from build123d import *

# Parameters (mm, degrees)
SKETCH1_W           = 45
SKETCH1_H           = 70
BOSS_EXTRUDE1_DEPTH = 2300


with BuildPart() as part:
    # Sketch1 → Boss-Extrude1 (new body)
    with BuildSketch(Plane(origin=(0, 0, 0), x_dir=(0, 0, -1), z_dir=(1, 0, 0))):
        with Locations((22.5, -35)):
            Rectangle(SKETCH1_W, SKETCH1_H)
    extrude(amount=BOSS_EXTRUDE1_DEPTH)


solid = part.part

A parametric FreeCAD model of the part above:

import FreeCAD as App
import Part
import Sketcher


def add_polygon(sketch, points):
    """Adds a closed chain of lines whose ends are joined by coincident constraints."""
    first, n = sketch.GeometryCount, len(points)
    for a, b in zip(points, points[1:] + points[:1]):
        sketch.addGeometry(Part.LineSegment(App.Vector(*a, 0), App.Vector(*b, 0)), False)
    for i in range(n):
        sketch.addConstraint(Sketcher.Constraint("Coincident", first + i, 2, first + (i + 1) % n, 1))

doc = App.newDocument("Part")
body = doc.addObject("PartDesign::Body", "Body")

# Sketch on YZ plane
sketch1 = doc.addObject("Sketcher::SketchObject", "Sketch")
body.addObject(sketch1)
sketch1.AttachmentSupport = (doc.YZ_Plane, [""])
sketch1.MapMode = "FlatFace"
add_polygon(sketch1, [(0, 0), (-70, 0), (-70, -45), (0, -45)])  # lines 0-3
sketch1.addConstraint(Sketcher.Constraint("Horizontal", 0))
sketch1.addConstraint(Sketcher.Constraint("Vertical", 1))
sketch1.addConstraint(Sketcher.Constraint("Horizontal", 2))
sketch1.addConstraint(Sketcher.Constraint("Vertical", 3))
sketch1.addConstraint(Sketcher.Constraint("Coincident", 3, 2, -1, 1))
sketch1.addConstraint(Sketcher.Constraint("DistanceX", 0, 2, 0, 1, 70.0))
sketch1.addConstraint(Sketcher.Constraint("DistanceY", 1, 2, 1, 1, 45.0))
pad1 = doc.addObject("PartDesign::Pad", "Pad")
body.addObject(pad1)
pad1.Profile = sketch1
pad1.Length = 2300

doc.recompute()
